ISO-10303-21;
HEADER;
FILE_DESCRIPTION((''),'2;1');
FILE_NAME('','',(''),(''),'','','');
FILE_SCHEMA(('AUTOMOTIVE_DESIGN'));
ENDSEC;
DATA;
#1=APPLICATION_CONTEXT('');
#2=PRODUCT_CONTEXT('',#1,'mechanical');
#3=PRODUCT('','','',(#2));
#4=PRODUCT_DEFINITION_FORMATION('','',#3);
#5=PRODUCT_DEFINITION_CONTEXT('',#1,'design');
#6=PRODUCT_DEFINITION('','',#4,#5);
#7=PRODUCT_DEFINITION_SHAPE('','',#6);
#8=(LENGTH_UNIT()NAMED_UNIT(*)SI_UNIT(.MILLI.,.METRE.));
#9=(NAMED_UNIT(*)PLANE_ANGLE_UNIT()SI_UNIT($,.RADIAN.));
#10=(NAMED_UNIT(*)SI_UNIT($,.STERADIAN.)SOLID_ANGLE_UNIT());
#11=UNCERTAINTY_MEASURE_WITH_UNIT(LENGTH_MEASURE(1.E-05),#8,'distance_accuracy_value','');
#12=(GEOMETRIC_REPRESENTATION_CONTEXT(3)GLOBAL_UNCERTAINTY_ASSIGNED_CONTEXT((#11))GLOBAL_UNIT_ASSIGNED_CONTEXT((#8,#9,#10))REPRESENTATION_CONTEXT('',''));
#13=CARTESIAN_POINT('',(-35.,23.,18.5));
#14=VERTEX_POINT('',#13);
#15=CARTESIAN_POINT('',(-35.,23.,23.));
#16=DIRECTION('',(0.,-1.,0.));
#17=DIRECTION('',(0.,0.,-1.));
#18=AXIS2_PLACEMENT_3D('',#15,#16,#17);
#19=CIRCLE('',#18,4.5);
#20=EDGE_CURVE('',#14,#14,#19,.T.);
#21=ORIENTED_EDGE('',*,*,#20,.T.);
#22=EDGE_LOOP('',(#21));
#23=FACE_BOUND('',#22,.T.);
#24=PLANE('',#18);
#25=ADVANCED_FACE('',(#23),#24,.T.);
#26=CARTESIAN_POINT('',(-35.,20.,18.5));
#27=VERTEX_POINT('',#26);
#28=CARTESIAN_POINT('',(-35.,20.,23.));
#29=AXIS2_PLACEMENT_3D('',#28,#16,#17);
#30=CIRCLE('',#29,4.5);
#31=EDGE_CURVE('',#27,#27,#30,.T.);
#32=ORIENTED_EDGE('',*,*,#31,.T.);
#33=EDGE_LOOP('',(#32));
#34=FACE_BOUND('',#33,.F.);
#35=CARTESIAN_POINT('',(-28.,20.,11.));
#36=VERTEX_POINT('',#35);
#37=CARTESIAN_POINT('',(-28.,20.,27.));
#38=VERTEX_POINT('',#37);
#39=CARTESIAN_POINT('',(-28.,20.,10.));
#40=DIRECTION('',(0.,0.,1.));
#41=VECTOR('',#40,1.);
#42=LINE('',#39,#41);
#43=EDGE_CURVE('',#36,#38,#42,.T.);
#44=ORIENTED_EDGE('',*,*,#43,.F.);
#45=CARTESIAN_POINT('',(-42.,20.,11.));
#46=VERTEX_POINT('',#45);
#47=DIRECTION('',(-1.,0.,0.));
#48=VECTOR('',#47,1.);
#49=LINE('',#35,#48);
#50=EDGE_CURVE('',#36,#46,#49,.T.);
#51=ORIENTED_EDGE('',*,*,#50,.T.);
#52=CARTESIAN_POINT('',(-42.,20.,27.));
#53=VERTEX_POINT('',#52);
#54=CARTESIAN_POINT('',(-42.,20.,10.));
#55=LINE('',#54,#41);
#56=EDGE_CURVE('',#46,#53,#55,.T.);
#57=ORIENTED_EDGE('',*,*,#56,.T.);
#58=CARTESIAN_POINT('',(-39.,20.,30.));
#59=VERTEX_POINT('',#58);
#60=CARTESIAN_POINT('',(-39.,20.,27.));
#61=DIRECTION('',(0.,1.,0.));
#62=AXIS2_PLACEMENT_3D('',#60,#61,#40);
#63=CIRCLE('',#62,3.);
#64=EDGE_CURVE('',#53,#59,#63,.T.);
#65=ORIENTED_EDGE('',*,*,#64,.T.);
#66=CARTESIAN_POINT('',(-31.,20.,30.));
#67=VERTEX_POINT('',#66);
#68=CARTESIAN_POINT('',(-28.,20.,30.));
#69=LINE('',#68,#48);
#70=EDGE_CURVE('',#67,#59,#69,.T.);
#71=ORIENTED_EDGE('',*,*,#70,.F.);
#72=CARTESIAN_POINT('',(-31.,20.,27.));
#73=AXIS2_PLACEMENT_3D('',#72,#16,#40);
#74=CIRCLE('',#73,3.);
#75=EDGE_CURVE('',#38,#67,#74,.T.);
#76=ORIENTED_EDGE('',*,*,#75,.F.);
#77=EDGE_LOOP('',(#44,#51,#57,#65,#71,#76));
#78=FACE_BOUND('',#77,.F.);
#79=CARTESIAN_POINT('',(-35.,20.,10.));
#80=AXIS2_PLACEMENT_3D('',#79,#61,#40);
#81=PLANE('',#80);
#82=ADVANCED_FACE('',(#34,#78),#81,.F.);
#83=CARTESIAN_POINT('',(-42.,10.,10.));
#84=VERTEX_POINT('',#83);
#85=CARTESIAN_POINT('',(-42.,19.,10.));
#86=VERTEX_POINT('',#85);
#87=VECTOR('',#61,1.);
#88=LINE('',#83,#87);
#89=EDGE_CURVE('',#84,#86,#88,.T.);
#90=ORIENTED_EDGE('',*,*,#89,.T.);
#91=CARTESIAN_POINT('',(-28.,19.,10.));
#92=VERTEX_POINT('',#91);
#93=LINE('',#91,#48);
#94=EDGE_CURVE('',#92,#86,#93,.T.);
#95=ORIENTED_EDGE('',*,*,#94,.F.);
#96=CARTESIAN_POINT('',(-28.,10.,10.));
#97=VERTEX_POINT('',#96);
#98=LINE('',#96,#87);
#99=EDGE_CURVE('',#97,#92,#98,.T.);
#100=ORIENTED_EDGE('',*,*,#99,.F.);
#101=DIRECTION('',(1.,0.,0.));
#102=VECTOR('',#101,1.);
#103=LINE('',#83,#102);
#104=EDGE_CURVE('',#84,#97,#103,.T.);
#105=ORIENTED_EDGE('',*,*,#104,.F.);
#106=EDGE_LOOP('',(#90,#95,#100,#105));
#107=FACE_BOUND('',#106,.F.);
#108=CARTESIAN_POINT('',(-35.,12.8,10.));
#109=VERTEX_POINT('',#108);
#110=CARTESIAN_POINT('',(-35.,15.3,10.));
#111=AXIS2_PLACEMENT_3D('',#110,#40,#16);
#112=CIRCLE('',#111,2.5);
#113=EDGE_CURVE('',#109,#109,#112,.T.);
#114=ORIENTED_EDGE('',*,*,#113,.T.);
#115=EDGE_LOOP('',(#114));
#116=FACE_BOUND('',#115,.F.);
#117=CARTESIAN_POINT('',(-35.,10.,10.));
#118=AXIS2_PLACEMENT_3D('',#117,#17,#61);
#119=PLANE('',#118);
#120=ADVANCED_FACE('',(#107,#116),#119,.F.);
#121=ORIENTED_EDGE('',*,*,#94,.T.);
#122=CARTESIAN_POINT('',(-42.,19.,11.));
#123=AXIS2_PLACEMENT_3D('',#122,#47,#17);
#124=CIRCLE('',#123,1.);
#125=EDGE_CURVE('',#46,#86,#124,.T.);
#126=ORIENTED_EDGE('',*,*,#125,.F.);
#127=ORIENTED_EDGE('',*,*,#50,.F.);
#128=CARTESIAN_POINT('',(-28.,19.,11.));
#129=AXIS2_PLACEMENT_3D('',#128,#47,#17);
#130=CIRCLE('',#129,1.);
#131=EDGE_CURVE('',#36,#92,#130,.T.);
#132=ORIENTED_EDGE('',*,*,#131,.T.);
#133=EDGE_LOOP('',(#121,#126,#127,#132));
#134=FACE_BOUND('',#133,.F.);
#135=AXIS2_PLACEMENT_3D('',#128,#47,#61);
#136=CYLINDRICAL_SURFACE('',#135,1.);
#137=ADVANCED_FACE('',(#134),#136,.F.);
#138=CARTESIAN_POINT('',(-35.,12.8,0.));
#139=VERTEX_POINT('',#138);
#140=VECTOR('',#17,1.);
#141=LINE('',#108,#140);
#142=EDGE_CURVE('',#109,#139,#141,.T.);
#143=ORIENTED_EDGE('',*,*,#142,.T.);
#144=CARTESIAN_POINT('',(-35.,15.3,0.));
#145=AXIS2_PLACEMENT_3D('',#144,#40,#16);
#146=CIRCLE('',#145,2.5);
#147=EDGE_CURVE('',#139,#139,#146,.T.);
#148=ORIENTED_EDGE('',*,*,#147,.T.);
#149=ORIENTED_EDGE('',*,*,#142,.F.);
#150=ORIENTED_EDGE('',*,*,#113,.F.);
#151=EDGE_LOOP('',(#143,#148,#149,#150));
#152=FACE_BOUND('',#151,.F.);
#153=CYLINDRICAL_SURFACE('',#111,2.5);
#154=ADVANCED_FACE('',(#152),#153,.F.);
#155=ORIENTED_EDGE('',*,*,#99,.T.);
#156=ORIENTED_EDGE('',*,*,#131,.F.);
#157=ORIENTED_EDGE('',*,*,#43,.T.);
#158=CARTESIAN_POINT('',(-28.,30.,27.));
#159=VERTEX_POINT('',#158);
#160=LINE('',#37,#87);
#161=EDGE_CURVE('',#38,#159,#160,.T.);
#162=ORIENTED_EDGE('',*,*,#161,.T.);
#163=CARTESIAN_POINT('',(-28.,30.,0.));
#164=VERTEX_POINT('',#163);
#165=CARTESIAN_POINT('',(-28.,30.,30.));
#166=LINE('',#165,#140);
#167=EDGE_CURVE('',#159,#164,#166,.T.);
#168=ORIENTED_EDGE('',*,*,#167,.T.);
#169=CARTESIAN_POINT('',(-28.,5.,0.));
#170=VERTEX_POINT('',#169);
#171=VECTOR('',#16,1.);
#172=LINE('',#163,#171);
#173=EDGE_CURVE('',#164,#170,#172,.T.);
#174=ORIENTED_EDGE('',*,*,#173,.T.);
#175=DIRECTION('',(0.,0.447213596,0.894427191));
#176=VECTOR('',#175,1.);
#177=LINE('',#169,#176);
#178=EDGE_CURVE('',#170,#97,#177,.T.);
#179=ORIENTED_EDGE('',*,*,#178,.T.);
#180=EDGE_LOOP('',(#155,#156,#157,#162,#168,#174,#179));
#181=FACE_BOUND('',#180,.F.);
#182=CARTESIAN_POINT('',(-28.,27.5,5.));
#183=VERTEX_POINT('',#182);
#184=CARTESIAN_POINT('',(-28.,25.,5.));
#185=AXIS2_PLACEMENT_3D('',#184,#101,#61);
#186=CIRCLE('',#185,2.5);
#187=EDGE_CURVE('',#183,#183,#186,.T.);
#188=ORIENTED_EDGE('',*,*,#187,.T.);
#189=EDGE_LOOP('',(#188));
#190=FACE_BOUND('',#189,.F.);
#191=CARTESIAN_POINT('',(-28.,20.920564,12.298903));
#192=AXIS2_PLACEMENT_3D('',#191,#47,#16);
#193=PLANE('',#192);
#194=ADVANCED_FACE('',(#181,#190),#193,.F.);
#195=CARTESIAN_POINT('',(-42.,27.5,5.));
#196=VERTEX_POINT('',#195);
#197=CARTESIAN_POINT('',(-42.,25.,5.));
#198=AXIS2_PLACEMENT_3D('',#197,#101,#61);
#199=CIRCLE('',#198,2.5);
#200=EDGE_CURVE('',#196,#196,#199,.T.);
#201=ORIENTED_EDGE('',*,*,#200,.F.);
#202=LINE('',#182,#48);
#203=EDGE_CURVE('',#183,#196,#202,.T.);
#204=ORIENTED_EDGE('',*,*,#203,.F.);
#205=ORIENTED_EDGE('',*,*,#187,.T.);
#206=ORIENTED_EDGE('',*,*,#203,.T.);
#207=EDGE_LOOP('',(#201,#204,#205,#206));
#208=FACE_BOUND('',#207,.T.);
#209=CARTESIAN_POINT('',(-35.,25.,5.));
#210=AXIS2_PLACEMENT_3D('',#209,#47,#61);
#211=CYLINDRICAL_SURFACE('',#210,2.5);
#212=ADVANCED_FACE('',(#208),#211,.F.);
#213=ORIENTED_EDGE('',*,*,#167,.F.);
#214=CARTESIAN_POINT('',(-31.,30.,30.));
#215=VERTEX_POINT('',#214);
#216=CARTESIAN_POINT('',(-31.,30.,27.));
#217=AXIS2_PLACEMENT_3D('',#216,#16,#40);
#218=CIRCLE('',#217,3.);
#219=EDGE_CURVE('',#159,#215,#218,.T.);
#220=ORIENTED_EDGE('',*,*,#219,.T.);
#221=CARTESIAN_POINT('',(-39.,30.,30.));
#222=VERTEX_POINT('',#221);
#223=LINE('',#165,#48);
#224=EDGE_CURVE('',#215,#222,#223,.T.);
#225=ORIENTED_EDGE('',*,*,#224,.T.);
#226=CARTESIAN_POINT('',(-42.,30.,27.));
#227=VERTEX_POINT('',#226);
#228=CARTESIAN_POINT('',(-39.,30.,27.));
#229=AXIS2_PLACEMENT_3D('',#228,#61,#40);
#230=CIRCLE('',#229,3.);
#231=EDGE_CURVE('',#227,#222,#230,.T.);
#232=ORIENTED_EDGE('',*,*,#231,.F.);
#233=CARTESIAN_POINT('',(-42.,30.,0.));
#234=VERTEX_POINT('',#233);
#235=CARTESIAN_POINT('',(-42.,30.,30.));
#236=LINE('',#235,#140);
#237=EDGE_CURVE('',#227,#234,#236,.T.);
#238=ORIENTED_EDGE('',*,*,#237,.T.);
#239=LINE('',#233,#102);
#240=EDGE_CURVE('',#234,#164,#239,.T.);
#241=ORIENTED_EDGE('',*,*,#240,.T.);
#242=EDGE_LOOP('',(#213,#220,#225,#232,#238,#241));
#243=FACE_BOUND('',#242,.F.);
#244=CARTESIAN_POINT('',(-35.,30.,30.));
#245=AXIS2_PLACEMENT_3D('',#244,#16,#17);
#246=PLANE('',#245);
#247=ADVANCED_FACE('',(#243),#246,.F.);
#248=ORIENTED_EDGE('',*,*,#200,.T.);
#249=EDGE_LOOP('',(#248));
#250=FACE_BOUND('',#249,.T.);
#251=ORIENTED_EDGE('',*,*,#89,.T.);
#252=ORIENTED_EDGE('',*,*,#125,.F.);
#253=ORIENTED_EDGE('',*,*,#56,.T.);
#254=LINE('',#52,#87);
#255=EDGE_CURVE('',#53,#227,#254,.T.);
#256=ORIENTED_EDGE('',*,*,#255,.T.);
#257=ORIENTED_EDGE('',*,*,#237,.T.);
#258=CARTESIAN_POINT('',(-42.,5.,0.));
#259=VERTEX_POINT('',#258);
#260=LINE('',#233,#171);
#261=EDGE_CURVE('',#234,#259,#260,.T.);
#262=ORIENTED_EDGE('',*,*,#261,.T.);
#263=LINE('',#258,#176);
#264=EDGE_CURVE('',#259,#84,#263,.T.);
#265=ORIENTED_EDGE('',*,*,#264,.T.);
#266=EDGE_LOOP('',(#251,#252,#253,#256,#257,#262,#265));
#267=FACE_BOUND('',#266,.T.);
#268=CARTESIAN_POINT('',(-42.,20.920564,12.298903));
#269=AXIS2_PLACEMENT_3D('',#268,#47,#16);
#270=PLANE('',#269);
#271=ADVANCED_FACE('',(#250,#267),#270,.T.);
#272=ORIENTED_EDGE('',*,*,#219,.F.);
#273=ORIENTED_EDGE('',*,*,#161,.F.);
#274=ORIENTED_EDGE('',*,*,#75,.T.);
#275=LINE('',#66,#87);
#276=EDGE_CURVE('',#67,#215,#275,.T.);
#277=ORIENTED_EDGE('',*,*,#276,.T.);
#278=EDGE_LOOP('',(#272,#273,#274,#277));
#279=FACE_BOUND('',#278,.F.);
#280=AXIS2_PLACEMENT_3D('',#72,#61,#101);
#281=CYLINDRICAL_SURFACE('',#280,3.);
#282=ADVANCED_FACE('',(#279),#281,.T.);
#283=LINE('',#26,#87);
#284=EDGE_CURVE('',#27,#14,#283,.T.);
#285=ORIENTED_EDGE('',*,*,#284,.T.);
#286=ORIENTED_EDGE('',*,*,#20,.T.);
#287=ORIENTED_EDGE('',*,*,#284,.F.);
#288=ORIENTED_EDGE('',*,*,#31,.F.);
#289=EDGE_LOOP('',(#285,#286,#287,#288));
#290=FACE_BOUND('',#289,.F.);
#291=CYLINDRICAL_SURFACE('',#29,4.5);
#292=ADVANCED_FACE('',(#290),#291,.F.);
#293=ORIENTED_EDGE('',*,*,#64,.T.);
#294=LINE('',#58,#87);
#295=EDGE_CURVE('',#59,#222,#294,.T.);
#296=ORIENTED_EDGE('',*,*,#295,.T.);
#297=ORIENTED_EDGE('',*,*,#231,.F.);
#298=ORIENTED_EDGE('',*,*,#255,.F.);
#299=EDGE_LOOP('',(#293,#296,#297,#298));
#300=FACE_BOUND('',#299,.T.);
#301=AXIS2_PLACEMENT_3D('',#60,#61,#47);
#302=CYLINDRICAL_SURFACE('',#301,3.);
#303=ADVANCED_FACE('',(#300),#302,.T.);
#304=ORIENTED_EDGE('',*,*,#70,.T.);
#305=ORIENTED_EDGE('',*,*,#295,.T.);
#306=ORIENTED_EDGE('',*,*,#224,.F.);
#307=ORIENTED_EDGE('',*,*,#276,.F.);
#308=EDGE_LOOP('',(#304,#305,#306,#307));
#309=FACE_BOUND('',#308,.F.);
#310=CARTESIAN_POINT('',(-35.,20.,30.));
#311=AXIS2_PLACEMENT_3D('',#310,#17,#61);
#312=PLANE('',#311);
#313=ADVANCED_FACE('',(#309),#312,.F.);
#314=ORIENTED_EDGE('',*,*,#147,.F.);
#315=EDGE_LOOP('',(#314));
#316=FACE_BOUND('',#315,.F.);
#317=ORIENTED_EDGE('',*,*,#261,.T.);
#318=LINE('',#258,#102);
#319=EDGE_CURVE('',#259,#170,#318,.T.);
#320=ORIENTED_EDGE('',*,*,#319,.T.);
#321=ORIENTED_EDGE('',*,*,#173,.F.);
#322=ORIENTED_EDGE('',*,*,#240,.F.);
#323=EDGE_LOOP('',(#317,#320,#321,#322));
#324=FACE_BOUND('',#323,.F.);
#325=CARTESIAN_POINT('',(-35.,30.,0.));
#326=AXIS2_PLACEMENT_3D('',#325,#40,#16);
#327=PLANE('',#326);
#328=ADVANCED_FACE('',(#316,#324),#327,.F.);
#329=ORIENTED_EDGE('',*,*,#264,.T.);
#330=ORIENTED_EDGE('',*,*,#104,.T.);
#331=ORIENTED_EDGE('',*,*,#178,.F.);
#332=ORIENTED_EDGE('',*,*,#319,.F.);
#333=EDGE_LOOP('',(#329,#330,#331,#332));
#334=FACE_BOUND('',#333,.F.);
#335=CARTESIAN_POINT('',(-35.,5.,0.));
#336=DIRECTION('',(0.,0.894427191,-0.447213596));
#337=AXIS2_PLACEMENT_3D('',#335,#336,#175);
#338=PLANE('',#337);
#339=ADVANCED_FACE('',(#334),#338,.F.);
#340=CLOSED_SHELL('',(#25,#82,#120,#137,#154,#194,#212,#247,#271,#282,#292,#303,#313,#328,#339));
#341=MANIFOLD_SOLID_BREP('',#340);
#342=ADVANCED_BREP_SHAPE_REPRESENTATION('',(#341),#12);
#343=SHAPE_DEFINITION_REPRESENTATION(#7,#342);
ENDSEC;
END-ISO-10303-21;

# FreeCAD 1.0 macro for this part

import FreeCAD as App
import Part
import Sketcher
from FreeCAD import Vector


def edges_at(feature, points):
    """Names of the edges that pass closest to the given points."""
    edges = feature.Shape.Edges
    near = lambda p: min(range(len(edges)), key=lambda i: edges[i].distToShape(Part.Vertex(*p))[0])
    return sorted({f"Edge{near(p) + 1}" for p in points})

doc = App.newDocument("Part")
params = doc.addObject("Spreadsheet::Sheet", "Params")
for row, (alias, value) in enumerate([
    ("sketch1_diameter", "5 mm"),
    ("sketch1_width", "10 mm"),
    ("sketch1_width2", "25 mm"),
    ("sketch1_height", "30 mm"),
    ("sketch1_height2", "20 mm"),
    ("pad1_length", "14 mm"),
    ("sketch2_diameter", "9 mm"),
    ("pocket1_length", "3 mm"),
    ("fillet_radius", "3 mm"),
    ("sketch3_diameter", "5 mm"),
    ("fillet2_radius", "1 mm"),
], start=1):
    params.set(f"A{row}", alias)
    params.set(f"B{row}", "=" + value)
    params.setAlias(f"B{row}", alias)

body = doc.addObject("PartDesign::Body", "Body")

# Sketch on YZ plane
sketch1 = body.newObject("Sketcher::SketchObject", "Sketch")
sketch1.AttachmentSupport = (doc.getObject("YZ_Plane"), [""])
sketch1.MapMode = "FlatFace"
sketch1.addGeometry([
    Part.LineSegment(Vector(20, 10, 0), Vector(10, 10, 0)),  # 0
    Part.LineSegment(Vector(10, 10, 0), Vector(5, 0, 0)),  # 1
    Part.LineSegment(Vector(5, 0, 0), Vector(30, 0, 0)),  # 2
    Part.LineSegment(Vector(30, 0, 0), Vector(30, 30, 0)),  # 3
    Part.LineSegment(Vector(30, 30, 0), Vector(20, 30, 0)),  # 4
    Part.LineSegment(Vector(20, 30, 0), Vector(20, 10, 0)),  # 5
    Part.Circle(Vector(25, 5, 0), Vector(0, 0, 1), 2.5),  # 6
], False)
sketch1.addConstraint([
    Sketcher.Constraint("Coincident", 0, 2, 1, 1),
    Sketcher.Constraint("Coincident", 1, 2, 2, 1),
    Sketcher.Constraint("Coincident", 2, 2, 3, 1),
    Sketcher.Constraint("Coincident", 3, 2, 4, 1),
    Sketcher.Constraint("Coincident", 4, 2, 5, 1),
    Sketcher.Constraint("Coincident", 5, 2, 0, 1),
    Sketcher.Constraint("Horizontal", 0),
    Sketcher.Constraint("Horizontal", 2),
    Sketcher.Constraint("Vertical", 3),
    Sketcher.Constraint("Horizontal", 4),
    Sketcher.Constraint("Vertical", 5),
    Sketcher.Constraint("PointOnObject", 1, 2, -1),
    Sketcher.Constraint("Equal", 0, 4),
    Sketcher.Constraint("Diameter", 6, 5.0),
    Sketcher.Constraint("DistanceX", 0, 2, 0, 1, 10.0),
    Sketcher.Constraint("DistanceX", 2, 1, 2, 2, 25.0),
    Sketcher.Constraint("DistanceY", 3, 1, 3, 2, 30.0),
    Sketcher.Constraint("DistanceY", 5, 2, 5, 1, 20.0),
    Sketcher.Constraint("DistanceX", -1, 1, 6, 3, 25.0),
    Sketcher.Constraint("DistanceY", -1, 1, 6, 3, 5.0),
    Sketcher.Constraint("DistanceX", -1, 1, 0, 2, 10.0),
])
sketch1.setExpression("Constraints[13]", "Params.sketch1_diameter")
sketch1.setExpression("Constraints[14]", "Params.sketch1_width")
sketch1.setExpression("Constraints[15]", "Params.sketch1_width2")
sketch1.setExpression("Constraints[16]", "Params.sketch1_height")
sketch1.setExpression("Constraints[17]", "Params.sketch1_height2")
pad1 = body.newObject("PartDesign::Pad", "Pad")
pad1.Profile = sketch1
pad1.setExpression("Length", "Params.pad1_length")
pad1.Midplane = True

# Sketch on XZ plane
sketch2 = body.newObject("Sketcher::SketchObject", "Sketch001")
sketch2.AttachmentSupport = (doc.getObject("XZ_Plane"), [""])
sketch2.MapMode = "FlatFace"
sketch2.AttachmentOffset = App.Placement(Vector(0, 0, -20), App.Rotation())
sketch2.addGeometry(Part.Circle(Vector(0, 23, 0), Vector(0, 0, 1), 4.5), False)
sketch2.addConstraint([
    Sketcher.Constraint("PointOnObject", 0, 3, -2),
    Sketcher.Constraint("Diameter", 0, 9.0),
    Sketcher.Constraint("DistanceY", -1, 1, 0, 3, 23.0),
])
sketch2.setExpression("Constraints[1]", "Params.sketch2_diameter")
pocket1 = body.newObject("PartDesign::Pocket", "Pocket")
pocket1.Profile = sketch2
pocket1.setExpression("Length", "Params.pocket1_length")
doc.recompute()

fillet = body.newObject("PartDesign::Fillet", "Fillet")
fillet.Base = (pocket1, edges_at(pocket1, [(-7, 25, 30), (7, 25, 30)]))
fillet.setExpression("Radius", "Params.fillet_radius")

# Sketch on XY plane
sketch3 = body.newObject("Sketcher::SketchObject", "Sketch002")
sketch3.AttachmentSupport = (doc.getObject("XY_Plane"), [""])
sketch3.MapMode = "FlatFace"
sketch3.AttachmentOffset = App.Placement(Vector(0, 0, 10), App.Rotation())
sketch3.addGeometry(Part.Circle(Vector(0, 15.3, 0), Vector(0, 0, 1), 2.5), False)
sketch3.addConstraint([
    Sketcher.Constraint("PointOnObject", 0, 3, -2),
    Sketcher.Constraint("Diameter", 0, 5.0),
    Sketcher.Constraint("DistanceY", -1, 1, 0, 3, 15.3),
])
sketch3.setExpression("Constraints[1]", "Params.sketch3_diameter")
pocket2 = body.newObject("PartDesign::Pocket", "Pocket001")
pocket2.Profile = sketch3
pocket2.Type = "ThroughAll"
doc.recompute()

fillet2 = body.newObject("PartDesign::Fillet", "Fillet001")
fillet2.Base = (pocket2, edges_at(pocket2, [(0, 20, 10)]))
fillet2.setExpression("Radius", "Params.fillet2_radius")
body2 = doc.addObject("PartDesign::Body", "Body001")
doc.recompute()

body.Placement = App.Placement(Vector(-35, 0, 0), App.Rotation(Vector(0, 0, 1), 0))
boolean = body2.newObject("PartDesign::Boolean", "Boolean")
boolean.Type = "Fuse"
boolean.addObjects([body])

doc.recompute()
